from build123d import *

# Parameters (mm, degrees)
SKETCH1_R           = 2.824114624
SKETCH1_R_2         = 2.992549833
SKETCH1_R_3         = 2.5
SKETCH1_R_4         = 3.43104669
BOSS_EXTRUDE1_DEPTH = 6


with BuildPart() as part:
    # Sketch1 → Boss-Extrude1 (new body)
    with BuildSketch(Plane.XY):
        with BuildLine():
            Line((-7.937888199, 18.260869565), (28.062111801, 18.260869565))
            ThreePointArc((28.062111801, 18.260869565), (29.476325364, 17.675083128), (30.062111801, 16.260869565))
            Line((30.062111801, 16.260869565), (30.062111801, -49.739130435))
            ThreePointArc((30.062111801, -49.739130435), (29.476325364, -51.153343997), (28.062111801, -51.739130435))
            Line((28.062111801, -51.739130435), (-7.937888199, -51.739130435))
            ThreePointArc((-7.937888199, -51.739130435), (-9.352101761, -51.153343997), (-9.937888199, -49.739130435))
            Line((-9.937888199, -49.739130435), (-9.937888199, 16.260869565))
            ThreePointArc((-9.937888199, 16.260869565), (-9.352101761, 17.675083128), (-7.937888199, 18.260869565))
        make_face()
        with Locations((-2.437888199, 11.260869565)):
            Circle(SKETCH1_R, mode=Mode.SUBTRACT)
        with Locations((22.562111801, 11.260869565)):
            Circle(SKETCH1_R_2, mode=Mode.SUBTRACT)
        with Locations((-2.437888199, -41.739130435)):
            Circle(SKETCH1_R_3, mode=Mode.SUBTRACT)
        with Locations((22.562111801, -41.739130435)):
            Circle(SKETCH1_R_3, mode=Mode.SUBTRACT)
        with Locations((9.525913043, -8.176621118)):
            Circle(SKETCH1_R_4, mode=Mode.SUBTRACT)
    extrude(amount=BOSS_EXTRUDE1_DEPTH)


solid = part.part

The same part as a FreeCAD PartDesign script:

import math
import FreeCAD as App
import Part
import Sketcher
Q = App.Units.Quantity

doc = App.newDocument("Part")
body = doc.addObject("PartDesign::Body", "Body")

sketch1 = body.newObject("Sketcher::SketchObject", "Sketch")
sketch1.AttachmentSupport = (doc.getObject("XY_Plane"), [""])
sketch1.MapMode = "FlatFace"
sketch1.addGeometry([
    Part.LineSegment(App.Vector(28.1, 18.3, 0), App.Vector(-7.9, 18.3, 0)),
    Part.ArcOfCircle(Part.Circle(App.Vector(-7.9, 16.3, 0), App.Vector(0, 0, 1), 2), math.radians(90), math.radians(180)),
    Part.LineSegment(App.Vector(-9.9, 16.3, 0), App.Vector(-9.9, -49.7, 0)),
    Part.ArcOfCircle(Part.Circle(App.Vector(-7.9, -49.7, 0), App.Vector(0, 0, 1), 2), math.radians(-180), math.radians(-90)),
    Part.LineSegment(App.Vector(-7.9, -51.7, 0), App.Vector(28.1, -51.7, 0)),
    Part.ArcOfCircle(Part.Circle(App.Vector(28.1, -49.7, 0), App.Vector(0, 0, 1), 2), math.radians(-90), math.radians(0)),
    Part.LineSegment(App.Vector(30.1, -49.7, 0), App.Vector(30.1, 16.3, 0)),
    Part.ArcOfCircle(Part.Circle(App.Vector(28.1, 16.3, 0), App.Vector(0, 0, 1), 2), math.radians(0), math.radians(90)),
    Part.Circle(App.Vector(22.6, -41.7, 0), App.Vector(0, 0, 1), 2.5),
    Part.Circle(App.Vector(-2.4, -41.7, 0), App.Vector(0, 0, 1), 2.5),
    Part.Circle(App.Vector(22.6, 11.3, 0), App.Vector(0, 0, 1), 3),
    Part.Circle(App.Vector(9.5, -8.2, 0), App.Vector(0, 0, 1), 3.4),
    Part.Circle(App.Vector(-2.4, 11.3, 0), App.Vector(0, 0, 1), 2.8),
], False)
sketch1.addConstraint([
    Sketcher.Constraint("Tangent", 0, 2, 1, 1),
    Sketcher.Constraint("Tangent", 1, 2, 2, 1),
    Sketcher.Constraint("Tangent", 2, 2, 3, 1),
    Sketcher.Constraint("Tangent", 3, 2, 4, 1),
    Sketcher.Constraint("Tangent", 4, 2, 5, 1),
    Sketcher.Constraint("Tangent", 5, 2, 6, 1),
    Sketcher.Constraint("Tangent", 6, 2, 7, 1),
    Sketcher.Constraint("Tangent", 7, 2, 0, 1),
    Sketcher.Constraint("Horizontal", 0),
    Sketcher.Constraint("Vertical", 2),
    Sketcher.Constraint("Horizontal", 4),
    Sketcher.Constraint("Vertical", 6),
    Sketcher.Constraint("Equal", 1, 3),
    Sketcher.Constraint("Equal", 3, 5),
    Sketcher.Constraint("Equal", 5, 7),
    Sketcher.Constraint("Equal", 8, 9),
    Sketcher.Constraint("Horizontal", 8, 3, 9, 3),
    Sketcher.Constraint("Horizontal", 10, 3, 12, 3),
    Sketcher.Constraint("Vertical", 8, 3, 10, 3),
    Sketcher.Constraint("Vertical", 9, 3, 12, 3),
    Sketcher.Constraint("Diameter", 8, Q("5 mm")),
    Sketcher.Constraint("Radius", 1, Q("2 mm")),
    Sketcher.Constraint("DistanceX", 0, 2, 0, 1, Q("36 mm")),
    Sketcher.Constraint("DistanceY", 2, 2, 2, 1, Q("66 mm")),
    Sketcher.Constraint("DistanceY", 5, 3, 8, 3, Q("8 mm")),
    Sketcher.Constraint("DistanceX", 9, 3, 8, 3, Q("25 mm")),
    Sketcher.Constraint("DistanceY", 10, 3, 7, 3, Q("5 mm")),
    Sketcher.Constraint("Diameter", 10, Q("5.9851 mm")),
    Sketcher.Constraint("DistanceX", 8, 3, 5, 3, Q("5.5 mm")),
    Sketcher.Constraint("Diameter", 12, Q("5.648229 mm")),
    Sketcher.Constraint("Diameter", 11, Q("6.862093 mm")),
    Sketcher.Constraint("DistanceX", 11, 3, 10, 3, Q("13.036199 mm")),
    Sketcher.Constraint("DistanceX", 1, 3, -1, 1, Q("7.937888 mm")),
    Sketcher.Constraint("DistanceY", -1, 1, 1, 3, Q("16.26087 mm")),
    Sketcher.Constraint("DistanceY", 11, 3, -1, 1, Q("8.176621 mm")),
])
pad1 = body.newObject("PartDesign::Pad", "Pad")
pad1.Profile = sketch1
pad1.Length = 6

doc.recompute()
